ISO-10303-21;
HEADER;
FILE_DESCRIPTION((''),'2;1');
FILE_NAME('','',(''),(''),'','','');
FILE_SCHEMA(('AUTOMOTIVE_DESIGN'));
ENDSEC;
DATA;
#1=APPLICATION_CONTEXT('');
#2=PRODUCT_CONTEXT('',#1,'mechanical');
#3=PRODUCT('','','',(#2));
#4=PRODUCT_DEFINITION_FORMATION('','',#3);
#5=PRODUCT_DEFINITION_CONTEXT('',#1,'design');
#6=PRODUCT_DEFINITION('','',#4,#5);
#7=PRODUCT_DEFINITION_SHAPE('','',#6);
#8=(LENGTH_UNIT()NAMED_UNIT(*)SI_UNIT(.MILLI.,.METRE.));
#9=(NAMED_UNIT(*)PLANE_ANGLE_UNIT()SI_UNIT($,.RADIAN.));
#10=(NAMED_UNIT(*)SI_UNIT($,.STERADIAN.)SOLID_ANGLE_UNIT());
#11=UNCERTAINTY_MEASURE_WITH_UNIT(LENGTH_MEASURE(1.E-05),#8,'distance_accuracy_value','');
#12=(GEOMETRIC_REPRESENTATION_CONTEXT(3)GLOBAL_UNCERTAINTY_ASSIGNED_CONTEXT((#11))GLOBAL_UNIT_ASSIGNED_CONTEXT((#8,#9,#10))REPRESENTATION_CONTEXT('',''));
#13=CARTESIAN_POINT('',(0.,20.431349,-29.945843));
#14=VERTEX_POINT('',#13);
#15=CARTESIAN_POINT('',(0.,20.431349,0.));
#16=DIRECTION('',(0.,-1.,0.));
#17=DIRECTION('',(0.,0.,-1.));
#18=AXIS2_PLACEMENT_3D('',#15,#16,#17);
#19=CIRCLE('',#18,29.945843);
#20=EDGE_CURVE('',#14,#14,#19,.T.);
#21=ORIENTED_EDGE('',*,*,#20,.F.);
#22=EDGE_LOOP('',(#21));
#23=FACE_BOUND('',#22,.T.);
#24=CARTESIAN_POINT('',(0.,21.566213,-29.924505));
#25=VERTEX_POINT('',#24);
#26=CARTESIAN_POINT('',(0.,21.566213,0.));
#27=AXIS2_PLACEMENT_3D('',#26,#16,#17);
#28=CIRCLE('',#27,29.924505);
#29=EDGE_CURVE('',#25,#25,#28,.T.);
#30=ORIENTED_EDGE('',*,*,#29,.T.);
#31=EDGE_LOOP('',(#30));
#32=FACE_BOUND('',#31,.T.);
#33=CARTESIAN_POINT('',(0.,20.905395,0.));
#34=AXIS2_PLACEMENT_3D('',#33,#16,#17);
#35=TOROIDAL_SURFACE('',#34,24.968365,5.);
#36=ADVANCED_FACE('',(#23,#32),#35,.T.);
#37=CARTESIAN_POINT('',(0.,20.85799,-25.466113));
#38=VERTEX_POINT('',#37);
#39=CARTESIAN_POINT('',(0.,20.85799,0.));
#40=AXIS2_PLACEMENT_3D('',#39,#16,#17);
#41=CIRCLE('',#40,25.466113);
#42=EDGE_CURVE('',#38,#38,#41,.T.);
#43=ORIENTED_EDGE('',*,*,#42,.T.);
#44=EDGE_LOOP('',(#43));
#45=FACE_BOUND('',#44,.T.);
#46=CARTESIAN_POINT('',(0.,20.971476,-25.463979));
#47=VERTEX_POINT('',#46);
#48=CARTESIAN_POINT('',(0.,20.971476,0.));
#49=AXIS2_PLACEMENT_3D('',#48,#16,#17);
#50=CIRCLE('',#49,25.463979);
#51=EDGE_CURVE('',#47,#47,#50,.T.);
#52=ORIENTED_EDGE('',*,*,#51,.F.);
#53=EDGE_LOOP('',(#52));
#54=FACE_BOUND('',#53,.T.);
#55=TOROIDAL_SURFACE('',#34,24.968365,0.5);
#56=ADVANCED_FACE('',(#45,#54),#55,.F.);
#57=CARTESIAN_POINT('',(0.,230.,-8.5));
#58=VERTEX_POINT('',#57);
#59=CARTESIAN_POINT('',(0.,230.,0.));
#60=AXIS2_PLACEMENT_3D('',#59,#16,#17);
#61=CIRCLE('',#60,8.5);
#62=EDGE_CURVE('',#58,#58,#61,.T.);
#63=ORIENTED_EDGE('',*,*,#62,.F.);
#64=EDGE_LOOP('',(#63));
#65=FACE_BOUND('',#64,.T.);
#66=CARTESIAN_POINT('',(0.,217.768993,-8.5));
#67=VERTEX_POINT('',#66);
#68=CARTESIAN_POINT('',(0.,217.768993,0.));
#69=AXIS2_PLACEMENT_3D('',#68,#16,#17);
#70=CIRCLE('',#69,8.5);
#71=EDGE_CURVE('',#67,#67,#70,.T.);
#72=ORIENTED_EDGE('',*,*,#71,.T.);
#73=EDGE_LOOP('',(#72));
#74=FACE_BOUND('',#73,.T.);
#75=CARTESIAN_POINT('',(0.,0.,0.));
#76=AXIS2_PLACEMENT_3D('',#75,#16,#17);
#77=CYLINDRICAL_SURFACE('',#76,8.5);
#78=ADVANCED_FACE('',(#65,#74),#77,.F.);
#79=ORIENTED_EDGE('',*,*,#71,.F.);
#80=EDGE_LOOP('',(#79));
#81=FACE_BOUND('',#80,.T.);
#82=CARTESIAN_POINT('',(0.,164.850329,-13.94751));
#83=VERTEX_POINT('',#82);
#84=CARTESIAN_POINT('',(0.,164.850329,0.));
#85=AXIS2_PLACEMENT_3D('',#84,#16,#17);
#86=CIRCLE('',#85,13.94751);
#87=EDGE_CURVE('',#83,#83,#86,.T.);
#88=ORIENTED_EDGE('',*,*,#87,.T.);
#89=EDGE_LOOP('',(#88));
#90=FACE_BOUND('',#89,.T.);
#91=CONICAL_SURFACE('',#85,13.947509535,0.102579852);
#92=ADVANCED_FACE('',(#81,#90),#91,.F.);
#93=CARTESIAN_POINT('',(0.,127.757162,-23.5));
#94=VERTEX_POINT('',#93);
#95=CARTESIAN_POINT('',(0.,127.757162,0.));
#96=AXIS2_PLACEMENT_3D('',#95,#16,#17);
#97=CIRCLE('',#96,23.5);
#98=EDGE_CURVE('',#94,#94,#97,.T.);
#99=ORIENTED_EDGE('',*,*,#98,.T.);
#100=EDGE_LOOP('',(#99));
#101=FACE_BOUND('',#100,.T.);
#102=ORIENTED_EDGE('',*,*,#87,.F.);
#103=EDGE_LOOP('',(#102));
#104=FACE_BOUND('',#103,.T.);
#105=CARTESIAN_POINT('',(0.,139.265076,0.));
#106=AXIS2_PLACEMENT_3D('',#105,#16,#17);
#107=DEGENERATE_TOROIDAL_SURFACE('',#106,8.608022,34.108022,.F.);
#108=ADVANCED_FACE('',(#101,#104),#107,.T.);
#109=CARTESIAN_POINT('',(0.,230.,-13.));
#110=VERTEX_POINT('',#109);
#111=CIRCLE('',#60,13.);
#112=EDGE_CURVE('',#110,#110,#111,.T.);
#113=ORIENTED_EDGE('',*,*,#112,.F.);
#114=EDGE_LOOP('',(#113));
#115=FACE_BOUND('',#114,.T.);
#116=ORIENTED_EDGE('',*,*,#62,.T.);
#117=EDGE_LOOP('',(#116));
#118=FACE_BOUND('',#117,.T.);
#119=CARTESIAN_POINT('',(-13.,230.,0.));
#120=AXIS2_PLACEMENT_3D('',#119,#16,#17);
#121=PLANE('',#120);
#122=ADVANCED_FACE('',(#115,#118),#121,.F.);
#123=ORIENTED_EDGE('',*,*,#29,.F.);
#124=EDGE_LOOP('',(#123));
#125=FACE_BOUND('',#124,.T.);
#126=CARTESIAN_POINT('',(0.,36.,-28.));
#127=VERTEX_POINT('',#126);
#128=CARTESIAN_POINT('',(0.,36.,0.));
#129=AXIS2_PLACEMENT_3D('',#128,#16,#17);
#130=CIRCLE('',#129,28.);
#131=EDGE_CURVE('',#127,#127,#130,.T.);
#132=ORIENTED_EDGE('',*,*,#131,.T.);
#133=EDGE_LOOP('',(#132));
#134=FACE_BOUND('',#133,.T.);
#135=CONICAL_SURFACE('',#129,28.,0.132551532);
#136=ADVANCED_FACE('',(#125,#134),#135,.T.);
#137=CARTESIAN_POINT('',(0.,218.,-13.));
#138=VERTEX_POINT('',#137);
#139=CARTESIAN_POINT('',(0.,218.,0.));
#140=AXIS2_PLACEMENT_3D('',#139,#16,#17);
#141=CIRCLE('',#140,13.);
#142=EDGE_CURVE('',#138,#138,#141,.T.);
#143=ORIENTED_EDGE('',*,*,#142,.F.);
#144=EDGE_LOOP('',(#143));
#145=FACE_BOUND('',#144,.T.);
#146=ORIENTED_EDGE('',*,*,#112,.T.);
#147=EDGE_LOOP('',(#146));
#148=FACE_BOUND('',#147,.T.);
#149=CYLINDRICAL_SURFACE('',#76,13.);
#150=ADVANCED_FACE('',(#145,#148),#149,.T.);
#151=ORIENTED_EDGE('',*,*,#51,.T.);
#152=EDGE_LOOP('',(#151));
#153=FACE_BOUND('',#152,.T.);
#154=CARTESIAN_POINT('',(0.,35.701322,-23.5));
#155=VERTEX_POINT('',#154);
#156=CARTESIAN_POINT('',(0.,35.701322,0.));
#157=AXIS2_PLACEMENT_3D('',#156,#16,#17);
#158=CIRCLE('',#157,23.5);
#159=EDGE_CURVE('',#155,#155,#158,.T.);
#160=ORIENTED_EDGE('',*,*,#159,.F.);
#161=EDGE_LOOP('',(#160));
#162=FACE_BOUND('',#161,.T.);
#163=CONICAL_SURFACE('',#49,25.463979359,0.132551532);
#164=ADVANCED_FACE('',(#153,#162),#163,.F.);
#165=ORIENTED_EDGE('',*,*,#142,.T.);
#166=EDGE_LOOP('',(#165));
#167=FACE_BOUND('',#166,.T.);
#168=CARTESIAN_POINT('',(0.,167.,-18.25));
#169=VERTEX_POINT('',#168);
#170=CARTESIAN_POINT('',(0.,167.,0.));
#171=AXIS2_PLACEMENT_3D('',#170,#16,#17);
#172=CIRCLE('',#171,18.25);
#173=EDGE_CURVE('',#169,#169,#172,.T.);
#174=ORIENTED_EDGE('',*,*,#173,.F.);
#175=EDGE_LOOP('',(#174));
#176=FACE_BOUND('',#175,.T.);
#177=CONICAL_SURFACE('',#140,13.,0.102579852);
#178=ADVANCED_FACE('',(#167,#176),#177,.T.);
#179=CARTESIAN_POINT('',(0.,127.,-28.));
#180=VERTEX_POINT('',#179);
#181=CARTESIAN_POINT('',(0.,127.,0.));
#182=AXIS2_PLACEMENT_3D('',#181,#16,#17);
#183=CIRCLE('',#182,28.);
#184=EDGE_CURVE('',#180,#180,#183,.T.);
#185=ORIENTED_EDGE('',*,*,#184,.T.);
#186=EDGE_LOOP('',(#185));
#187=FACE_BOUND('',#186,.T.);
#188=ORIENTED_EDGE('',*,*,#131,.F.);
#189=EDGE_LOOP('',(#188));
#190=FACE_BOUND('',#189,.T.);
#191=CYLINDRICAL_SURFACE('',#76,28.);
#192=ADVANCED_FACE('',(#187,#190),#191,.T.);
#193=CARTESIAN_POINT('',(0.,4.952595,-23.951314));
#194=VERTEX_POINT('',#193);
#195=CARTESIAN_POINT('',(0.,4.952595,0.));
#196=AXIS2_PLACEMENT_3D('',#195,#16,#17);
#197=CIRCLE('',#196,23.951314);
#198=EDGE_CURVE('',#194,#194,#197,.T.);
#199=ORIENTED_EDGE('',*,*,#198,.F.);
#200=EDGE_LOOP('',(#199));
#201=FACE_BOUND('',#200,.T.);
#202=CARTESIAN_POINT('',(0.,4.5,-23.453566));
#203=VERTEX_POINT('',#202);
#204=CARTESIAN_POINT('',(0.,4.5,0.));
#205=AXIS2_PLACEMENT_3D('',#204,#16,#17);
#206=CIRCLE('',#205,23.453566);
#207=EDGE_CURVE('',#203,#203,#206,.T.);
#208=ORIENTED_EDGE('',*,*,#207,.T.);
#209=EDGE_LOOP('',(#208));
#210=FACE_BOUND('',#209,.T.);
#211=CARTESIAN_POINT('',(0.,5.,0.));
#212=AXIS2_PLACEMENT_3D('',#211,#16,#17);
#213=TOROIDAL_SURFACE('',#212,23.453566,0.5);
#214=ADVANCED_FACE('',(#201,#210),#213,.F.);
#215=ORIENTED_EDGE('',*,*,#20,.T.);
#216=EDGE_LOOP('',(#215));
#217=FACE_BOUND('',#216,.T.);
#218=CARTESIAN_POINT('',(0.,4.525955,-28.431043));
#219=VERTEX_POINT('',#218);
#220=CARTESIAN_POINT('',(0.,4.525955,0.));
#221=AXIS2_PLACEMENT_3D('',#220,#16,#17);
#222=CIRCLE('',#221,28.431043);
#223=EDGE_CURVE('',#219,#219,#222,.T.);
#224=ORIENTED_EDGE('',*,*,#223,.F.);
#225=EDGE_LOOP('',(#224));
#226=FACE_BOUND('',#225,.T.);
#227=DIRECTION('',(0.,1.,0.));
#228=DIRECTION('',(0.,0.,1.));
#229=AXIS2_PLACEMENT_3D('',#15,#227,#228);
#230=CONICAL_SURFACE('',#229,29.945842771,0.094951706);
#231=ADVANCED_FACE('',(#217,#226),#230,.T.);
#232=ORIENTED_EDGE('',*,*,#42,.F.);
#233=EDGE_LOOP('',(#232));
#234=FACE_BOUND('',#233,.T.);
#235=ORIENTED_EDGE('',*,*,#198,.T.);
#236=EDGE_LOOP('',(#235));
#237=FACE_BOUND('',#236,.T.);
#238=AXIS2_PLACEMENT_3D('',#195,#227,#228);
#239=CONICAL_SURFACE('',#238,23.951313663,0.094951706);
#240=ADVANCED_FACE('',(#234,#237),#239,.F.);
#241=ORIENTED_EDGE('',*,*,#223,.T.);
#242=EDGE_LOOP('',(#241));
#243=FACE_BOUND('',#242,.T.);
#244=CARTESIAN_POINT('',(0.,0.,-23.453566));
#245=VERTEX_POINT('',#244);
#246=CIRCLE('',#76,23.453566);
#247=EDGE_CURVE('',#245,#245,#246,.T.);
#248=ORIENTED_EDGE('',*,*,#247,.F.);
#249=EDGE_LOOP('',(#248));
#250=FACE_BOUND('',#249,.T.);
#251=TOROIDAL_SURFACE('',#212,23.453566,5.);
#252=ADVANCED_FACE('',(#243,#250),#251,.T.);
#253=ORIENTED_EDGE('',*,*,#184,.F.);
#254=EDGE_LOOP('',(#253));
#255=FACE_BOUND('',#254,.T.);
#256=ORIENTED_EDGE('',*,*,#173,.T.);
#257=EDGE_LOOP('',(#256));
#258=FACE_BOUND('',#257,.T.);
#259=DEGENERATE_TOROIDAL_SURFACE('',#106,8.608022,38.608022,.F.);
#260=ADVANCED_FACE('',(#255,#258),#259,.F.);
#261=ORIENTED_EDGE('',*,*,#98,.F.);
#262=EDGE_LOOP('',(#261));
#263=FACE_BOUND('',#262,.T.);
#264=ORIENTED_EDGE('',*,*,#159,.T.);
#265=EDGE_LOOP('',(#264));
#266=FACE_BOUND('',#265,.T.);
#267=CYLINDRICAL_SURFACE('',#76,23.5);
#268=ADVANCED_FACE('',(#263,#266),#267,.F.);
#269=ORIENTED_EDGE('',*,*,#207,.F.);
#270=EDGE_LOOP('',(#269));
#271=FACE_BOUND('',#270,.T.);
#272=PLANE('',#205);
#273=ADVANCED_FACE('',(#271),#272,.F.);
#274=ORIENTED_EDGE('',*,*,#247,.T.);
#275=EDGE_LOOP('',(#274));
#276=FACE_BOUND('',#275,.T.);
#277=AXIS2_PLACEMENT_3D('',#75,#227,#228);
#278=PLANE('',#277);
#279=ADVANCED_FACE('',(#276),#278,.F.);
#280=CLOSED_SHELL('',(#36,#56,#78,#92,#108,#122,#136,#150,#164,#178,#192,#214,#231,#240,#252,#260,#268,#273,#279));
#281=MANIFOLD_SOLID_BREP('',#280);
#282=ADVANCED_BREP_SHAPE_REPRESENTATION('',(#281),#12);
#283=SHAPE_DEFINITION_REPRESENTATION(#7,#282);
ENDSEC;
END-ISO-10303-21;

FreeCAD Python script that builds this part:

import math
import FreeCAD as App
import Part
import Sketcher

V = App.Vector
Q = App.Units.Quantity

doc = App.newDocument("Part")
params = doc.addObject("Spreadsheet::Sheet", "Params")
for row, (alias, value) in enumerate([
    ("sketch1_radius", "5 mm"),
    ("sketch1_radius2", "0.5 mm"),
    ("sketch1_height", "12 mm"),
    ("sketch1_height2", "91 mm"),
    ("revolution_angle", "360 deg"),
], start=1):
    params.set(f"A{row}", alias)
    params.set(f"B{row}", "=" + value)
    params.setAlias(f"B{row}", alias)

body = doc.addObject("PartDesign::Body", "Body")

# Sketch on XY plane
sketch1 = body.newObject("Sketcher::SketchObject", "Sketch")
sketch1.AttachmentSupport = (doc.getObject("XY_Plane"), [""])
sketch1.MapMode = "FlatFace"
sketch1.addGeometry([
    Part.LineSegment(V(-23.45, 0, 0), V(0, 0, 0)),  # 0
    Part.LineSegment(V(0, 0, 0), V(0, 4.5, 0)),  # 1
    Part.LineSegment(V(0, 4.5, 0), V(-23.45, 4.5, 0)),  # 2
    Part.ArcOfCircle(Part.Circle(V(-23.45, 5, 0), V(0, 0, 1), 0.5), math.radians(-175), math.radians(-90)),  # 3
    Part.LineSegment(V(-23.95, 4.95, 0), V(-25.47, 20.86, 0)),  # 4
    Part.ArcOfCircle(Part.Circle(V(-24.97, 20.91, 0), V(0, 0, 1), 0.5), math.radians(172.41), math.radians(185.44)),  # 5
    Part.LineSegment(V(-25.46, 20.97, 0), V(-23.5, 35.7, 0)),  # 6
    Part.LineSegment(V(-23.5, 35.7, 0), V(-23.5, 127.76, 0)),  # 7
    Part.ArcOfCircle(Part.Circle(V(8.61, 139.27, 0), V(0, 0, 1), 34.11), math.radians(131), math.radians(200)),  # 8
    Part.LineSegment(V(-13.95, 164.85, 0), V(-8.5, 217.77, 0)),  # 9
    Part.LineSegment(V(-8.5, 217.77, 0), V(-8.5, 230, 0)),  # 10
    Part.LineSegment(V(-8.5, 230, 0), V(-13, 230, 0)),  # 11
    Part.LineSegment(V(-13, 230, 0), V(-13, 218, 0)),  # 12
    Part.LineSegment(V(-13, 218, 0), V(-18.25, 167, 0)),  # 13
    Part.ArcOfCircle(Part.Circle(V(8.61, 139.27, 0), V(0, 0, 1), 38.61), math.radians(134), math.radians(199)),  # 14
    Part.LineSegment(V(-28, 127, 0), V(-28, 36, 0)),  # 15
    Part.LineSegment(V(-28, 36, 0), V(-29.92, 21.57, 0)),  # 16
    Part.ArcOfCircle(Part.Circle(V(-24.97, 20.91, 0), V(0, 0, 1), 5), math.radians(172.41), math.radians(185.44)),  # 17
    Part.LineSegment(V(-29.95, 20.43, 0), V(-28.43, 4.53, 0)),  # 18
    Part.ArcOfCircle(Part.Circle(V(-23.45, 5, 0), V(0, 0, 1), 5), math.radians(-175), math.radians(-90)),  # 19
], False)
sketch1.addConstraint([
    Sketcher.Constraint("Coincident", 0, 2, 1, 1),
    Sketcher.Constraint("Coincident", 1, 2, 2, 1),
    Sketcher.Constraint("Tangent", 2, 2, 3, 2),
    Sketcher.Constraint("Tangent", 3, 1, 4, 1),
    Sketcher.Constraint("Tangent", 4, 2, 5, 2),
    Sketcher.Constraint("Tangent", 5, 1, 6, 1),
    Sketcher.Constraint("Coincident", 6, 2, 7, 1),
    Sketcher.Constraint("Coincident", 7, 2, 8, 2),
    Sketcher.Constraint("Coincident", 8, 1, 9, 1),
    Sketcher.Constraint("Coincident", 9, 2, 10, 1),
    Sketcher.Constraint("Coincident", 10, 2, 11, 1),
    Sketcher.Constraint("Coincident", 11, 2, 12, 1),
    Sketcher.Constraint("Coincident", 12, 2, 13, 1),
    Sketcher.Constraint("Coincident", 13, 2, 14, 1),
    Sketcher.Constraint("Coincident", 14, 2, 15, 1),
    Sketcher.Constraint("Coincident", 15, 2, 16, 1),
    Sketcher.Constraint("Tangent", 16, 2, 17, 1),
    Sketcher.Constraint("Tangent", 17, 2, 18, 1),
    Sketcher.Constraint("Tangent", 18, 2, 19, 1),
    Sketcher.Constraint("Tangent", 19, 2, 0, 1),
    Sketcher.Constraint("Horizontal", 0),
    Sketcher.Constraint("Vertical", 1),
    Sketcher.Constraint("Horizontal", 2),
    Sketcher.Constraint("Vertical", 7),
    Sketcher.Constraint("Vertical", 10),
    Sketcher.Constraint("Horizontal", 11),
    Sketcher.Constraint("Vertical", 12),
    Sketcher.Constraint("Vertical", 15),
    Sketcher.Constraint("Coincident", 0, 2, -1, 1),
    Sketcher.Constraint("Coincident", 14, 3, 8, 3),
    Sketcher.Constraint("Coincident", 17, 3, 5, 3),
    Sketcher.Constraint("Coincident", 19, 3, 3, 3),
    Sketcher.Constraint("Equal", 3, 5),
    Sketcher.Constraint("Equal", 17, 19),
    Sketcher.Constraint("Parallel", 9, 13),
    Sketcher.Constraint("Parallel", 6, 16),
    Sketcher.Constraint("Equal", 11, 1),
    Sketcher.Constraint("Radius", 17, Q("5 mm")),
    Sketcher.Constraint("Radius", 3, Q("0.5 mm")),
    Sketcher.Constraint("DistanceY", 12, 2, 12, 1, Q("12 mm")),
    Sketcher.Constraint("DistanceY", 15, 2, 15, 1, Q("91 mm")),
    Sketcher.Constraint("DistanceY", -1, 1, 10, 2, Q("230 mm")),
    Sketcher.Constraint("DistanceX", 11, 2, -1, 1, Q("13 mm")),
    Sketcher.Constraint("DistanceY", -1, 1, 13, 2, Q("167 mm")),
    Sketcher.Constraint("DistanceX", 14, 2, -1, 1, Q("28 mm")),
    Sketcher.Constraint("DistanceY", -1, 1, 14, 2, Q("127 mm")),
    Sketcher.Constraint("DistanceX", 7, 2, 9, 2, Q("15 mm")),
    Sketcher.Constraint("DistanceX", 13, 2, -1, 1, Q("18.25 mm")),
    Sketcher.Constraint("Radius", 8, Q("34.108022 mm")),
    Sketcher.Constraint("Radius", 14, Q("38.608022 mm")),
    Sketcher.Constraint("Distance", 6, Q("14.8602 mm")),
    Sketcher.Constraint("DistanceY", 7, 1, 7, 2, Q("92.05584 mm")),
    Sketcher.Constraint("DistanceX", 5, 3, 3, 3, Q("1.514799 mm")),
    Sketcher.Constraint("Distance", 9, Q("53.198312 mm")),
])
sketch1.setExpression("Constraints[37]", "Params.sketch1_radius")
sketch1.setExpression("Constraints[38]", "Params.sketch1_radius2")
sketch1.setExpression("Constraints[39]", "Params.sketch1_height")
sketch1.setExpression("Constraints[40]", "Params.sketch1_height2")
revolution = body.newObject("PartDesign::Revolution", "Revolution")
revolution.Profile = sketch1
revolution.ReferenceAxis = (sketch1, ["V_Axis"])
revolution.setExpression("Angle", "Params.revolution_angle")

doc.recompute()
